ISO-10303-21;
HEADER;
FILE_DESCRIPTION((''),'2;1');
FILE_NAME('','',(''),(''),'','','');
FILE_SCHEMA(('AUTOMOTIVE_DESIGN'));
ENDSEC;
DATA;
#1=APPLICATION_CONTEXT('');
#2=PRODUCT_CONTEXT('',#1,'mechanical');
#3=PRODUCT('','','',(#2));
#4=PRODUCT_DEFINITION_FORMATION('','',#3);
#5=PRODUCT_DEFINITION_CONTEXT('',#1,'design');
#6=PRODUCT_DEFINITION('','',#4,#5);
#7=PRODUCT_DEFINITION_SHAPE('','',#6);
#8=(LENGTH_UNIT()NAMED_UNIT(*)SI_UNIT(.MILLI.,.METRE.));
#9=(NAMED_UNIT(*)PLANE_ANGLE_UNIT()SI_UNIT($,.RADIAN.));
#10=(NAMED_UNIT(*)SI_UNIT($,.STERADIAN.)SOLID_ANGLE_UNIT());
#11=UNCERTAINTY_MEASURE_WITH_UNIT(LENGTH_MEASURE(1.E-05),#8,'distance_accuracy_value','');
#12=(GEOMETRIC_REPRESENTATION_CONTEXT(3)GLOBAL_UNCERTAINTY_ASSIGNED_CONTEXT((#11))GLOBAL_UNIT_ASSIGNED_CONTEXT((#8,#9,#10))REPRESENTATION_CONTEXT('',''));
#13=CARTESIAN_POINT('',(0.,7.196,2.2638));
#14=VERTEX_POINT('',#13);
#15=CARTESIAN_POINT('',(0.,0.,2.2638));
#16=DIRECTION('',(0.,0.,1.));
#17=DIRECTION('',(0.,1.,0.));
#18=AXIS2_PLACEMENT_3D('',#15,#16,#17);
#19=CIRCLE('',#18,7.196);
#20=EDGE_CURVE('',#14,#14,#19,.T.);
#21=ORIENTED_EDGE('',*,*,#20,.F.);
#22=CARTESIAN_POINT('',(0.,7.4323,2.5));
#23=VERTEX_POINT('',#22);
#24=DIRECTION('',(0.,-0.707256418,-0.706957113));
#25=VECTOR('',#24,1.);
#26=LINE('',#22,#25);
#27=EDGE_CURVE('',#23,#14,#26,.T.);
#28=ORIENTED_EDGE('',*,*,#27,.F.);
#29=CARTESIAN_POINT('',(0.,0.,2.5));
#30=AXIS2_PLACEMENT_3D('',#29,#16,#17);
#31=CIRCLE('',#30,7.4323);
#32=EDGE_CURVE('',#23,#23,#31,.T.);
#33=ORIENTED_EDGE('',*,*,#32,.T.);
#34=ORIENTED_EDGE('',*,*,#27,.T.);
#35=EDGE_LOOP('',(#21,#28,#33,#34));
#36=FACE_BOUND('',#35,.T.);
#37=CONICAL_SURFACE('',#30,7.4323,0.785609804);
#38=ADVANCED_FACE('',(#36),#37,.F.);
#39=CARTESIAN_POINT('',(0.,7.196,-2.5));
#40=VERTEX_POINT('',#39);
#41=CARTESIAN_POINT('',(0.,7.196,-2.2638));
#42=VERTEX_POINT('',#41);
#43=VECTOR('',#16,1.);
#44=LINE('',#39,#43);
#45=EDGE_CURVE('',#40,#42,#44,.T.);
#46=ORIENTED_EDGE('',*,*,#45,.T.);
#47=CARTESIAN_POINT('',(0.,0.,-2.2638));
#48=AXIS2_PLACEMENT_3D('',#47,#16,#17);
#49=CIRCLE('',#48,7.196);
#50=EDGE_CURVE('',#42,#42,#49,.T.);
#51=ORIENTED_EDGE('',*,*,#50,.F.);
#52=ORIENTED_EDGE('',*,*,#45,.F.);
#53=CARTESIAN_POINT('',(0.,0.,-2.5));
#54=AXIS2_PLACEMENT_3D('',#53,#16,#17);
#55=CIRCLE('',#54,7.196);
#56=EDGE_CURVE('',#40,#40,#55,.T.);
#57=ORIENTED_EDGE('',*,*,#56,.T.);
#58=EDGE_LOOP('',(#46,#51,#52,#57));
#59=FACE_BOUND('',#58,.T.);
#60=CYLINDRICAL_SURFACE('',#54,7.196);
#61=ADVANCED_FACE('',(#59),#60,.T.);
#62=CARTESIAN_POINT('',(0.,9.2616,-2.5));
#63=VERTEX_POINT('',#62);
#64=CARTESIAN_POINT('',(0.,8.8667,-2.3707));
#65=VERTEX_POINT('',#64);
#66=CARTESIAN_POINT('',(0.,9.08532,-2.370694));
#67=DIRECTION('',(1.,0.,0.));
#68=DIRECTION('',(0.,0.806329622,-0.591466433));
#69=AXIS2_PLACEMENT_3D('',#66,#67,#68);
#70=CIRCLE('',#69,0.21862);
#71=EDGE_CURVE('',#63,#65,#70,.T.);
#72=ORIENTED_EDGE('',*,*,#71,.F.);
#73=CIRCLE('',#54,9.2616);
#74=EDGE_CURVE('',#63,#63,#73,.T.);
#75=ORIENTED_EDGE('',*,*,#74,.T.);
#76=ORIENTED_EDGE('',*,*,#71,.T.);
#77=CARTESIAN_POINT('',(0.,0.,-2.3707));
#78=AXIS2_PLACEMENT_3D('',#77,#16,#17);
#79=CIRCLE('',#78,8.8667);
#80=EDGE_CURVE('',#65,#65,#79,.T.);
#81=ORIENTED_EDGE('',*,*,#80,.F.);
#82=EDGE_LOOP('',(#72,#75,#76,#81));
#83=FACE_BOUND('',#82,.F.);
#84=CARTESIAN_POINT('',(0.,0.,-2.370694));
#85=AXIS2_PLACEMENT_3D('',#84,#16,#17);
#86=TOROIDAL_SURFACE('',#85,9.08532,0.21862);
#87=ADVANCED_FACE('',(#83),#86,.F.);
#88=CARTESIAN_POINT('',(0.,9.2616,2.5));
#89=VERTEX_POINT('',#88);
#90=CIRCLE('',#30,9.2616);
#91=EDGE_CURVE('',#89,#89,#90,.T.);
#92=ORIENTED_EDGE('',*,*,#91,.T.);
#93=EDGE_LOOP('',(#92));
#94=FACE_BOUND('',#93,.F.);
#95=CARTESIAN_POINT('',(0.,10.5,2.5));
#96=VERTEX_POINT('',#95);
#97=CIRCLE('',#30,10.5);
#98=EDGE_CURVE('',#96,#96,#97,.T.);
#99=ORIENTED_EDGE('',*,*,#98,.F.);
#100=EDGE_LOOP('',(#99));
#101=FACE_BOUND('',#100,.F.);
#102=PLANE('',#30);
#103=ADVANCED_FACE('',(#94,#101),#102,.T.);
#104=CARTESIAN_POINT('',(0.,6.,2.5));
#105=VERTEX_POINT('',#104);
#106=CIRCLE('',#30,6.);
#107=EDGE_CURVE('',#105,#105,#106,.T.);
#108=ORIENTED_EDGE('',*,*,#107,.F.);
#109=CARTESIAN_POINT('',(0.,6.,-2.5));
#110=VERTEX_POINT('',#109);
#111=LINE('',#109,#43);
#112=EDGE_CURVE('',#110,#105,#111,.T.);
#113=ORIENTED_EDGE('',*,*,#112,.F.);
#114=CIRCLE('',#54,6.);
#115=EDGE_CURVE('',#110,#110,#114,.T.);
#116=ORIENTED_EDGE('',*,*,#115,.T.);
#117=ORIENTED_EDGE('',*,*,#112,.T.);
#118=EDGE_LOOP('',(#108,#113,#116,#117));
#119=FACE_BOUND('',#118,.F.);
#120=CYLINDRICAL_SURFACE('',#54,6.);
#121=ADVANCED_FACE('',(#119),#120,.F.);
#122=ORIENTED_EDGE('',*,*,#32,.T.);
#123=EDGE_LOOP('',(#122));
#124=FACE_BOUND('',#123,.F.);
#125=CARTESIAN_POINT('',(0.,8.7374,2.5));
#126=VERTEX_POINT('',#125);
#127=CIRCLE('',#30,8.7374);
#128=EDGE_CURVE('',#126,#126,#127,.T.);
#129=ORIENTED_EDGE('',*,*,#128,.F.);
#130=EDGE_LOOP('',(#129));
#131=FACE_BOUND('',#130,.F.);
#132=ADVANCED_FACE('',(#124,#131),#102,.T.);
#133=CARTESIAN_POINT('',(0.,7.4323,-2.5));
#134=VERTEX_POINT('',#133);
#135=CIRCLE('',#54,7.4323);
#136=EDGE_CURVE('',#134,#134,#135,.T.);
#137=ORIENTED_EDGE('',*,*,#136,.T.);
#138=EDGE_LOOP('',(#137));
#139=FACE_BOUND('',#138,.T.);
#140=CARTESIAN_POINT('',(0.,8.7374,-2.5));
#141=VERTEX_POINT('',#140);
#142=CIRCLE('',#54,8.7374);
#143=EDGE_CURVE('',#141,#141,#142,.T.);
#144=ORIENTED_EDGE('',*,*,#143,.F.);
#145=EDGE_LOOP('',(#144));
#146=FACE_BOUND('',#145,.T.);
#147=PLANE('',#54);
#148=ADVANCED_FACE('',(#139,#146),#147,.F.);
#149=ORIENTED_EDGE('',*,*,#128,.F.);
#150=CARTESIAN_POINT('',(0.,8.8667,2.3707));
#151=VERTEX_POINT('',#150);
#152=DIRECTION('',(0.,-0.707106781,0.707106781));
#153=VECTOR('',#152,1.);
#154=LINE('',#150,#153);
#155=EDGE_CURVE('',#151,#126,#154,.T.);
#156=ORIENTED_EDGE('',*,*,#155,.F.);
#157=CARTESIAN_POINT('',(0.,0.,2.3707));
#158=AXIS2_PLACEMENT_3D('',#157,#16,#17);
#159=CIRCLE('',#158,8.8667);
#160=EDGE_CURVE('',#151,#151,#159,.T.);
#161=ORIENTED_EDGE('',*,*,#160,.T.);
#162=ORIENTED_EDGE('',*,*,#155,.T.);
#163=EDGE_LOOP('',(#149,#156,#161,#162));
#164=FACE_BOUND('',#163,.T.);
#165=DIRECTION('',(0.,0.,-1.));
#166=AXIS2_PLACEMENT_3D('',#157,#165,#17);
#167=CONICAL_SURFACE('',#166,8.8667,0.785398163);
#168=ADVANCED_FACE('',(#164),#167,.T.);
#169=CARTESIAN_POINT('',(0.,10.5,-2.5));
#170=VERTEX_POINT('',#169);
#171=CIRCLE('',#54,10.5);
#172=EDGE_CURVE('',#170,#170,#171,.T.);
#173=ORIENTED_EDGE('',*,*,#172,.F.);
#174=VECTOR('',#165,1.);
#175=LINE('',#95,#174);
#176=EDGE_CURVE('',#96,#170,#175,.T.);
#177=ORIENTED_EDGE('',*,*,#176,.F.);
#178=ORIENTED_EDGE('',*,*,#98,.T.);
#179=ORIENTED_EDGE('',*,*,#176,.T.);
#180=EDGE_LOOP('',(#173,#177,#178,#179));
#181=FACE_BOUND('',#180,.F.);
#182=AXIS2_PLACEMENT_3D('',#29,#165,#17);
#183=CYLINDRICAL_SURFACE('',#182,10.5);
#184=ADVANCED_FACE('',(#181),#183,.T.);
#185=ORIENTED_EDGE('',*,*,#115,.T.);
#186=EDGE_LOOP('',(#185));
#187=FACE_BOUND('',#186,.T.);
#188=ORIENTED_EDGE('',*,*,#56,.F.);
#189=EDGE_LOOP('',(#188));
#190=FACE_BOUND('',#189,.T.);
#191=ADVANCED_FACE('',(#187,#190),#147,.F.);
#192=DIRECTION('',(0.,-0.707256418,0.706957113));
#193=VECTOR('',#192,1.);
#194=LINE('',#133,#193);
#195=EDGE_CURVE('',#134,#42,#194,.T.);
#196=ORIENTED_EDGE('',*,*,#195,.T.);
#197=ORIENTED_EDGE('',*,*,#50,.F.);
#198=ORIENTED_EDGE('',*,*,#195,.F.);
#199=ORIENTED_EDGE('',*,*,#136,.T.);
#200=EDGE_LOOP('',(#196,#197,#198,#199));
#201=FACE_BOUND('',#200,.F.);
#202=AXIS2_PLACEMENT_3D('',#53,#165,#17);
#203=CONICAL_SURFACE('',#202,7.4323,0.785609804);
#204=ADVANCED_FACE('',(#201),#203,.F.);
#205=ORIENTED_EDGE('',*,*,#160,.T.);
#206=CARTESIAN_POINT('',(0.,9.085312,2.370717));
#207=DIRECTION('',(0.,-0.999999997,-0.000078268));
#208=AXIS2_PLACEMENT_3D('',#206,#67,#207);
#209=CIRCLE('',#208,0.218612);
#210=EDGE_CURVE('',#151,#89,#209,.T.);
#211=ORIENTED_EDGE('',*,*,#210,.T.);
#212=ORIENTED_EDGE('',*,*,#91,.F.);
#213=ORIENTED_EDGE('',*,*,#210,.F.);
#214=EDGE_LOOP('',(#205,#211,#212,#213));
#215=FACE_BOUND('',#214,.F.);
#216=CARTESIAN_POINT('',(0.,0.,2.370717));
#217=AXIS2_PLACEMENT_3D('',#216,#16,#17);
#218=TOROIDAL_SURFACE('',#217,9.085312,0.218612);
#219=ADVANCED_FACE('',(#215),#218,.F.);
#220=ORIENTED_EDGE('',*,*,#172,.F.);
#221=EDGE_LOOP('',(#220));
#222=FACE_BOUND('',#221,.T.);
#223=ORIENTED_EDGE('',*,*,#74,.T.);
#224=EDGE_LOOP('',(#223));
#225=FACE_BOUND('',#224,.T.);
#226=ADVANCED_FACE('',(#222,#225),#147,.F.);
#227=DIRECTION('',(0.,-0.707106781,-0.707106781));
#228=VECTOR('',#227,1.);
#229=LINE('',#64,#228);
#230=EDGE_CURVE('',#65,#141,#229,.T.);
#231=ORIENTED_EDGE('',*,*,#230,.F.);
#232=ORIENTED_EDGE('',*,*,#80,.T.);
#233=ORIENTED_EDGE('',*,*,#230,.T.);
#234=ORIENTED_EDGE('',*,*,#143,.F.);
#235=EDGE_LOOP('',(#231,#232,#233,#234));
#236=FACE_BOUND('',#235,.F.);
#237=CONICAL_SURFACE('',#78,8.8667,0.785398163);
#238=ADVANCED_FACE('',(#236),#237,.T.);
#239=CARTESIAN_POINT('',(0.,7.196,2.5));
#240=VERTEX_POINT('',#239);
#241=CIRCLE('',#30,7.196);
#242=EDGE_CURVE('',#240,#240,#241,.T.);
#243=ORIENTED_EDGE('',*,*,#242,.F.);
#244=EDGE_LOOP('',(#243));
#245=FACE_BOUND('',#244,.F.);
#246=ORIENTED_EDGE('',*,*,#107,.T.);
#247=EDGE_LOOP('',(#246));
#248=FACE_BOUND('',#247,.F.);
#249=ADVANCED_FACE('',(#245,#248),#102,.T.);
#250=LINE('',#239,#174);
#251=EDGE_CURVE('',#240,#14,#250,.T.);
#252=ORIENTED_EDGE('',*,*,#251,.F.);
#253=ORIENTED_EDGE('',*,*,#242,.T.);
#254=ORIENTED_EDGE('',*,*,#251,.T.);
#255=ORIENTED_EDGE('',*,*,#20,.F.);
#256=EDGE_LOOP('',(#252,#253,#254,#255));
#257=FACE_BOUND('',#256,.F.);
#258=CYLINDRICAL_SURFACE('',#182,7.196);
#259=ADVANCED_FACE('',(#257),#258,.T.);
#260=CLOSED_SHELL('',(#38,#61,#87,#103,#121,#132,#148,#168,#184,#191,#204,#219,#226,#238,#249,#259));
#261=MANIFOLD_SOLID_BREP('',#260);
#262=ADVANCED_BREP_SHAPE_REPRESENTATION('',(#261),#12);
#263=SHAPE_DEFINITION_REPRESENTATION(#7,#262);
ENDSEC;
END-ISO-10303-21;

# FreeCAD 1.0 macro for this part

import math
import FreeCAD as App
import Part
import Sketcher
from FreeCAD import Vector
Q = App.Units.Quantity

doc = App.newDocument("Part")
params = doc.addObject("Spreadsheet::Sheet", "Params")
for row, (alias, value) in enumerate([
    ("sketch1_height", "5 mm"),
    ("revolution_angle", "360 deg"),
], start=1):
    params.set(f"A{row}", alias)
    params.set(f"B{row}", "=" + value)
    params.setAlias(f"B{row}", alias)

body = doc.addObject("PartDesign::Body", "Body")

# Sketch on YZ plane
sketch1 = body.newObject("Sketcher::SketchObject", "Sketch")
sketch1.AttachmentSupport = (doc.getObject("YZ_Plane"), [""])
sketch1.MapMode = "FlatFace"
sketch1.addGeometry([
    Part.LineSegment(Vector(6, 2.5, 0), Vector(6, -2.5, 0)),  # 0
    Part.LineSegment(Vector(6, -2.5, 0), Vector(7.2, -2.5, 0)),  # 1
    Part.LineSegment(Vector(7.2, -2.5, 0), Vector(7.2, -2.26, 0)),  # 2
    Part.LineSegment(Vector(7.2, -2.26, 0), Vector(7.43, -2.5, 0)),  # 3
    Part.LineSegment(Vector(7.43, -2.5, 0), Vector(8.74, -2.5, 0)),  # 4
    Part.LineSegment(Vector(8.74, -2.5, 0), Vector(8.87, -2.37, 0)),  # 5
    Part.ArcOfCircle(Part.Circle(Vector(9.09, -2.37, 0), Vector(0, 0, 1), 0.22), math.radians(-36), math.radians(180)),  # 6
    Part.LineSegment(Vector(9.26, -2.5, 0), Vector(10.5, -2.5, 0)),  # 7
    Part.LineSegment(Vector(10.5, -2.5, 0), Vector(10.5, 2.5, 0)),  # 8
    Part.LineSegment(Vector(10.5, 2.5, 0), Vector(9.26, 2.5, 0)),  # 9
    Part.ArcOfCircle(Part.Circle(Vector(9.09, 2.37, 0), Vector(0, 0, 1), 0.22), math.radians(180), math.radians(396)),  # 10
    Part.LineSegment(Vector(8.87, 2.37, 0), Vector(8.74, 2.5, 0)),  # 11
    Part.LineSegment(Vector(8.74, 2.5, 0), Vector(7.43, 2.5, 0)),  # 12
    Part.LineSegment(Vector(7.43, 2.5, 0), Vector(7.2, 2.26, 0)),  # 13
    Part.LineSegment(Vector(7.2, 2.26, 0), Vector(7.2, 2.5, 0)),  # 14
    Part.LineSegment(Vector(7.2, 2.5, 0), Vector(6, 2.5, 0)),  # 15
], False)
sketch1.addConstraint([
    Sketcher.Constraint("Coincident", 0, 2, 1, 1),
    Sketcher.Constraint("Coincident", 1, 2, 2, 1),
    Sketcher.Constraint("Coincident", 2, 2, 3, 1),
    Sketcher.Constraint("Coincident", 3, 2, 4, 1),
    Sketcher.Constraint("Coincident", 4, 2, 5, 1),
    Sketcher.Constraint("Coincident", 5, 2, 6, 2),
    Sketcher.Constraint("Coincident", 6, 1, 7, 1),
    Sketcher.Constraint("Coincident", 7, 2, 8, 1),
    Sketcher.Constraint("Coincident", 8, 2, 9, 1),
    Sketcher.Constraint("Coincident", 9, 2, 10, 2),
    Sketcher.Constraint("Coincident", 10, 1, 11, 1),
    Sketcher.Constraint("Coincident", 11, 2, 12, 1),
    Sketcher.Constraint("Coincident", 12, 2, 13, 1),
    Sketcher.Constraint("Coincident", 13, 2, 14, 1),
    Sketcher.Constraint("Coincident", 14, 2, 15, 1),
    Sketcher.Constraint("Coincident", 15, 2, 0, 1),
    Sketcher.Constraint("Vertical", 0),
    Sketcher.Constraint("Horizontal", 1),
    Sketcher.Constraint("Vertical", 2),
    Sketcher.Constraint("Horizontal", 4),
    Sketcher.Constraint("Horizontal", 7),
    Sketcher.Constraint("Vertical", 8),
    Sketcher.Constraint("Horizontal", 9),
    Sketcher.Constraint("Horizontal", 12),
    Sketcher.Constraint("Vertical", 14),
    Sketcher.Constraint("Horizontal", 15),
    Sketcher.Constraint("Equal", 6, 10),
    Sketcher.Constraint("Symmetric", 6, 3, 10, 3, -1),
    Sketcher.Constraint("Symmetric", 4, 2, 11, 2, -1),
    Sketcher.Constraint("Symmetric", 2, 2, 13, 2, -1),
    Sketcher.Constraint("Perpendicular", 3, 5),
    Sketcher.Constraint("Perpendicular", 5, 11),
    Sketcher.Constraint("Perpendicular", 11, 13),
    Sketcher.Constraint("Horizontal", 1, 2, 3, 2),
    Sketcher.Constraint("Horizontal", 6, 3, 5, 2),
    Sketcher.Constraint("Horizontal", 4, 2, 6, 1),
    Sketcher.Constraint("Horizontal", 9, 2, 11, 2),
    Sketcher.Constraint("Horizontal", 12, 2, 14, 2),
    Sketcher.Constraint("Vertical", 3, 2, 12, 2),
    Sketcher.Constraint("DistanceY", 0, 2, 0, 1, Q("5 mm")),
    Sketcher.Constraint("DistanceX", -1, 1, 0, 2, Q("6 mm")),
    Sketcher.Constraint("DistanceX", -1, 1, 7, 2, Q("10.5 mm")),
    Sketcher.Constraint("Radius", 6, Q("0.2186 mm")),
    Sketcher.Constraint("DistanceX", 1, 1, 1, 2, Q("1.196 mm")),
    Sketcher.Constraint("DistanceX", 4, 1, 4, 2, Q("1.305 mm")),
    Sketcher.Constraint("Distance", 3, Q("0.334 mm")),
    Sketcher.Constraint("DistanceX", 7, 1, 7, 2, Q("1.2384 mm")),
])
sketch1.setExpression("Constraints[39]", "Params.sketch1_height")
revolution = body.newObject("PartDesign::Revolution", "Revolution")
revolution.Profile = sketch1
revolution.ReferenceAxis = (sketch1, ["V_Axis"])
revolution.setExpression("Angle", "Params.revolution_angle")

doc.recompute()
